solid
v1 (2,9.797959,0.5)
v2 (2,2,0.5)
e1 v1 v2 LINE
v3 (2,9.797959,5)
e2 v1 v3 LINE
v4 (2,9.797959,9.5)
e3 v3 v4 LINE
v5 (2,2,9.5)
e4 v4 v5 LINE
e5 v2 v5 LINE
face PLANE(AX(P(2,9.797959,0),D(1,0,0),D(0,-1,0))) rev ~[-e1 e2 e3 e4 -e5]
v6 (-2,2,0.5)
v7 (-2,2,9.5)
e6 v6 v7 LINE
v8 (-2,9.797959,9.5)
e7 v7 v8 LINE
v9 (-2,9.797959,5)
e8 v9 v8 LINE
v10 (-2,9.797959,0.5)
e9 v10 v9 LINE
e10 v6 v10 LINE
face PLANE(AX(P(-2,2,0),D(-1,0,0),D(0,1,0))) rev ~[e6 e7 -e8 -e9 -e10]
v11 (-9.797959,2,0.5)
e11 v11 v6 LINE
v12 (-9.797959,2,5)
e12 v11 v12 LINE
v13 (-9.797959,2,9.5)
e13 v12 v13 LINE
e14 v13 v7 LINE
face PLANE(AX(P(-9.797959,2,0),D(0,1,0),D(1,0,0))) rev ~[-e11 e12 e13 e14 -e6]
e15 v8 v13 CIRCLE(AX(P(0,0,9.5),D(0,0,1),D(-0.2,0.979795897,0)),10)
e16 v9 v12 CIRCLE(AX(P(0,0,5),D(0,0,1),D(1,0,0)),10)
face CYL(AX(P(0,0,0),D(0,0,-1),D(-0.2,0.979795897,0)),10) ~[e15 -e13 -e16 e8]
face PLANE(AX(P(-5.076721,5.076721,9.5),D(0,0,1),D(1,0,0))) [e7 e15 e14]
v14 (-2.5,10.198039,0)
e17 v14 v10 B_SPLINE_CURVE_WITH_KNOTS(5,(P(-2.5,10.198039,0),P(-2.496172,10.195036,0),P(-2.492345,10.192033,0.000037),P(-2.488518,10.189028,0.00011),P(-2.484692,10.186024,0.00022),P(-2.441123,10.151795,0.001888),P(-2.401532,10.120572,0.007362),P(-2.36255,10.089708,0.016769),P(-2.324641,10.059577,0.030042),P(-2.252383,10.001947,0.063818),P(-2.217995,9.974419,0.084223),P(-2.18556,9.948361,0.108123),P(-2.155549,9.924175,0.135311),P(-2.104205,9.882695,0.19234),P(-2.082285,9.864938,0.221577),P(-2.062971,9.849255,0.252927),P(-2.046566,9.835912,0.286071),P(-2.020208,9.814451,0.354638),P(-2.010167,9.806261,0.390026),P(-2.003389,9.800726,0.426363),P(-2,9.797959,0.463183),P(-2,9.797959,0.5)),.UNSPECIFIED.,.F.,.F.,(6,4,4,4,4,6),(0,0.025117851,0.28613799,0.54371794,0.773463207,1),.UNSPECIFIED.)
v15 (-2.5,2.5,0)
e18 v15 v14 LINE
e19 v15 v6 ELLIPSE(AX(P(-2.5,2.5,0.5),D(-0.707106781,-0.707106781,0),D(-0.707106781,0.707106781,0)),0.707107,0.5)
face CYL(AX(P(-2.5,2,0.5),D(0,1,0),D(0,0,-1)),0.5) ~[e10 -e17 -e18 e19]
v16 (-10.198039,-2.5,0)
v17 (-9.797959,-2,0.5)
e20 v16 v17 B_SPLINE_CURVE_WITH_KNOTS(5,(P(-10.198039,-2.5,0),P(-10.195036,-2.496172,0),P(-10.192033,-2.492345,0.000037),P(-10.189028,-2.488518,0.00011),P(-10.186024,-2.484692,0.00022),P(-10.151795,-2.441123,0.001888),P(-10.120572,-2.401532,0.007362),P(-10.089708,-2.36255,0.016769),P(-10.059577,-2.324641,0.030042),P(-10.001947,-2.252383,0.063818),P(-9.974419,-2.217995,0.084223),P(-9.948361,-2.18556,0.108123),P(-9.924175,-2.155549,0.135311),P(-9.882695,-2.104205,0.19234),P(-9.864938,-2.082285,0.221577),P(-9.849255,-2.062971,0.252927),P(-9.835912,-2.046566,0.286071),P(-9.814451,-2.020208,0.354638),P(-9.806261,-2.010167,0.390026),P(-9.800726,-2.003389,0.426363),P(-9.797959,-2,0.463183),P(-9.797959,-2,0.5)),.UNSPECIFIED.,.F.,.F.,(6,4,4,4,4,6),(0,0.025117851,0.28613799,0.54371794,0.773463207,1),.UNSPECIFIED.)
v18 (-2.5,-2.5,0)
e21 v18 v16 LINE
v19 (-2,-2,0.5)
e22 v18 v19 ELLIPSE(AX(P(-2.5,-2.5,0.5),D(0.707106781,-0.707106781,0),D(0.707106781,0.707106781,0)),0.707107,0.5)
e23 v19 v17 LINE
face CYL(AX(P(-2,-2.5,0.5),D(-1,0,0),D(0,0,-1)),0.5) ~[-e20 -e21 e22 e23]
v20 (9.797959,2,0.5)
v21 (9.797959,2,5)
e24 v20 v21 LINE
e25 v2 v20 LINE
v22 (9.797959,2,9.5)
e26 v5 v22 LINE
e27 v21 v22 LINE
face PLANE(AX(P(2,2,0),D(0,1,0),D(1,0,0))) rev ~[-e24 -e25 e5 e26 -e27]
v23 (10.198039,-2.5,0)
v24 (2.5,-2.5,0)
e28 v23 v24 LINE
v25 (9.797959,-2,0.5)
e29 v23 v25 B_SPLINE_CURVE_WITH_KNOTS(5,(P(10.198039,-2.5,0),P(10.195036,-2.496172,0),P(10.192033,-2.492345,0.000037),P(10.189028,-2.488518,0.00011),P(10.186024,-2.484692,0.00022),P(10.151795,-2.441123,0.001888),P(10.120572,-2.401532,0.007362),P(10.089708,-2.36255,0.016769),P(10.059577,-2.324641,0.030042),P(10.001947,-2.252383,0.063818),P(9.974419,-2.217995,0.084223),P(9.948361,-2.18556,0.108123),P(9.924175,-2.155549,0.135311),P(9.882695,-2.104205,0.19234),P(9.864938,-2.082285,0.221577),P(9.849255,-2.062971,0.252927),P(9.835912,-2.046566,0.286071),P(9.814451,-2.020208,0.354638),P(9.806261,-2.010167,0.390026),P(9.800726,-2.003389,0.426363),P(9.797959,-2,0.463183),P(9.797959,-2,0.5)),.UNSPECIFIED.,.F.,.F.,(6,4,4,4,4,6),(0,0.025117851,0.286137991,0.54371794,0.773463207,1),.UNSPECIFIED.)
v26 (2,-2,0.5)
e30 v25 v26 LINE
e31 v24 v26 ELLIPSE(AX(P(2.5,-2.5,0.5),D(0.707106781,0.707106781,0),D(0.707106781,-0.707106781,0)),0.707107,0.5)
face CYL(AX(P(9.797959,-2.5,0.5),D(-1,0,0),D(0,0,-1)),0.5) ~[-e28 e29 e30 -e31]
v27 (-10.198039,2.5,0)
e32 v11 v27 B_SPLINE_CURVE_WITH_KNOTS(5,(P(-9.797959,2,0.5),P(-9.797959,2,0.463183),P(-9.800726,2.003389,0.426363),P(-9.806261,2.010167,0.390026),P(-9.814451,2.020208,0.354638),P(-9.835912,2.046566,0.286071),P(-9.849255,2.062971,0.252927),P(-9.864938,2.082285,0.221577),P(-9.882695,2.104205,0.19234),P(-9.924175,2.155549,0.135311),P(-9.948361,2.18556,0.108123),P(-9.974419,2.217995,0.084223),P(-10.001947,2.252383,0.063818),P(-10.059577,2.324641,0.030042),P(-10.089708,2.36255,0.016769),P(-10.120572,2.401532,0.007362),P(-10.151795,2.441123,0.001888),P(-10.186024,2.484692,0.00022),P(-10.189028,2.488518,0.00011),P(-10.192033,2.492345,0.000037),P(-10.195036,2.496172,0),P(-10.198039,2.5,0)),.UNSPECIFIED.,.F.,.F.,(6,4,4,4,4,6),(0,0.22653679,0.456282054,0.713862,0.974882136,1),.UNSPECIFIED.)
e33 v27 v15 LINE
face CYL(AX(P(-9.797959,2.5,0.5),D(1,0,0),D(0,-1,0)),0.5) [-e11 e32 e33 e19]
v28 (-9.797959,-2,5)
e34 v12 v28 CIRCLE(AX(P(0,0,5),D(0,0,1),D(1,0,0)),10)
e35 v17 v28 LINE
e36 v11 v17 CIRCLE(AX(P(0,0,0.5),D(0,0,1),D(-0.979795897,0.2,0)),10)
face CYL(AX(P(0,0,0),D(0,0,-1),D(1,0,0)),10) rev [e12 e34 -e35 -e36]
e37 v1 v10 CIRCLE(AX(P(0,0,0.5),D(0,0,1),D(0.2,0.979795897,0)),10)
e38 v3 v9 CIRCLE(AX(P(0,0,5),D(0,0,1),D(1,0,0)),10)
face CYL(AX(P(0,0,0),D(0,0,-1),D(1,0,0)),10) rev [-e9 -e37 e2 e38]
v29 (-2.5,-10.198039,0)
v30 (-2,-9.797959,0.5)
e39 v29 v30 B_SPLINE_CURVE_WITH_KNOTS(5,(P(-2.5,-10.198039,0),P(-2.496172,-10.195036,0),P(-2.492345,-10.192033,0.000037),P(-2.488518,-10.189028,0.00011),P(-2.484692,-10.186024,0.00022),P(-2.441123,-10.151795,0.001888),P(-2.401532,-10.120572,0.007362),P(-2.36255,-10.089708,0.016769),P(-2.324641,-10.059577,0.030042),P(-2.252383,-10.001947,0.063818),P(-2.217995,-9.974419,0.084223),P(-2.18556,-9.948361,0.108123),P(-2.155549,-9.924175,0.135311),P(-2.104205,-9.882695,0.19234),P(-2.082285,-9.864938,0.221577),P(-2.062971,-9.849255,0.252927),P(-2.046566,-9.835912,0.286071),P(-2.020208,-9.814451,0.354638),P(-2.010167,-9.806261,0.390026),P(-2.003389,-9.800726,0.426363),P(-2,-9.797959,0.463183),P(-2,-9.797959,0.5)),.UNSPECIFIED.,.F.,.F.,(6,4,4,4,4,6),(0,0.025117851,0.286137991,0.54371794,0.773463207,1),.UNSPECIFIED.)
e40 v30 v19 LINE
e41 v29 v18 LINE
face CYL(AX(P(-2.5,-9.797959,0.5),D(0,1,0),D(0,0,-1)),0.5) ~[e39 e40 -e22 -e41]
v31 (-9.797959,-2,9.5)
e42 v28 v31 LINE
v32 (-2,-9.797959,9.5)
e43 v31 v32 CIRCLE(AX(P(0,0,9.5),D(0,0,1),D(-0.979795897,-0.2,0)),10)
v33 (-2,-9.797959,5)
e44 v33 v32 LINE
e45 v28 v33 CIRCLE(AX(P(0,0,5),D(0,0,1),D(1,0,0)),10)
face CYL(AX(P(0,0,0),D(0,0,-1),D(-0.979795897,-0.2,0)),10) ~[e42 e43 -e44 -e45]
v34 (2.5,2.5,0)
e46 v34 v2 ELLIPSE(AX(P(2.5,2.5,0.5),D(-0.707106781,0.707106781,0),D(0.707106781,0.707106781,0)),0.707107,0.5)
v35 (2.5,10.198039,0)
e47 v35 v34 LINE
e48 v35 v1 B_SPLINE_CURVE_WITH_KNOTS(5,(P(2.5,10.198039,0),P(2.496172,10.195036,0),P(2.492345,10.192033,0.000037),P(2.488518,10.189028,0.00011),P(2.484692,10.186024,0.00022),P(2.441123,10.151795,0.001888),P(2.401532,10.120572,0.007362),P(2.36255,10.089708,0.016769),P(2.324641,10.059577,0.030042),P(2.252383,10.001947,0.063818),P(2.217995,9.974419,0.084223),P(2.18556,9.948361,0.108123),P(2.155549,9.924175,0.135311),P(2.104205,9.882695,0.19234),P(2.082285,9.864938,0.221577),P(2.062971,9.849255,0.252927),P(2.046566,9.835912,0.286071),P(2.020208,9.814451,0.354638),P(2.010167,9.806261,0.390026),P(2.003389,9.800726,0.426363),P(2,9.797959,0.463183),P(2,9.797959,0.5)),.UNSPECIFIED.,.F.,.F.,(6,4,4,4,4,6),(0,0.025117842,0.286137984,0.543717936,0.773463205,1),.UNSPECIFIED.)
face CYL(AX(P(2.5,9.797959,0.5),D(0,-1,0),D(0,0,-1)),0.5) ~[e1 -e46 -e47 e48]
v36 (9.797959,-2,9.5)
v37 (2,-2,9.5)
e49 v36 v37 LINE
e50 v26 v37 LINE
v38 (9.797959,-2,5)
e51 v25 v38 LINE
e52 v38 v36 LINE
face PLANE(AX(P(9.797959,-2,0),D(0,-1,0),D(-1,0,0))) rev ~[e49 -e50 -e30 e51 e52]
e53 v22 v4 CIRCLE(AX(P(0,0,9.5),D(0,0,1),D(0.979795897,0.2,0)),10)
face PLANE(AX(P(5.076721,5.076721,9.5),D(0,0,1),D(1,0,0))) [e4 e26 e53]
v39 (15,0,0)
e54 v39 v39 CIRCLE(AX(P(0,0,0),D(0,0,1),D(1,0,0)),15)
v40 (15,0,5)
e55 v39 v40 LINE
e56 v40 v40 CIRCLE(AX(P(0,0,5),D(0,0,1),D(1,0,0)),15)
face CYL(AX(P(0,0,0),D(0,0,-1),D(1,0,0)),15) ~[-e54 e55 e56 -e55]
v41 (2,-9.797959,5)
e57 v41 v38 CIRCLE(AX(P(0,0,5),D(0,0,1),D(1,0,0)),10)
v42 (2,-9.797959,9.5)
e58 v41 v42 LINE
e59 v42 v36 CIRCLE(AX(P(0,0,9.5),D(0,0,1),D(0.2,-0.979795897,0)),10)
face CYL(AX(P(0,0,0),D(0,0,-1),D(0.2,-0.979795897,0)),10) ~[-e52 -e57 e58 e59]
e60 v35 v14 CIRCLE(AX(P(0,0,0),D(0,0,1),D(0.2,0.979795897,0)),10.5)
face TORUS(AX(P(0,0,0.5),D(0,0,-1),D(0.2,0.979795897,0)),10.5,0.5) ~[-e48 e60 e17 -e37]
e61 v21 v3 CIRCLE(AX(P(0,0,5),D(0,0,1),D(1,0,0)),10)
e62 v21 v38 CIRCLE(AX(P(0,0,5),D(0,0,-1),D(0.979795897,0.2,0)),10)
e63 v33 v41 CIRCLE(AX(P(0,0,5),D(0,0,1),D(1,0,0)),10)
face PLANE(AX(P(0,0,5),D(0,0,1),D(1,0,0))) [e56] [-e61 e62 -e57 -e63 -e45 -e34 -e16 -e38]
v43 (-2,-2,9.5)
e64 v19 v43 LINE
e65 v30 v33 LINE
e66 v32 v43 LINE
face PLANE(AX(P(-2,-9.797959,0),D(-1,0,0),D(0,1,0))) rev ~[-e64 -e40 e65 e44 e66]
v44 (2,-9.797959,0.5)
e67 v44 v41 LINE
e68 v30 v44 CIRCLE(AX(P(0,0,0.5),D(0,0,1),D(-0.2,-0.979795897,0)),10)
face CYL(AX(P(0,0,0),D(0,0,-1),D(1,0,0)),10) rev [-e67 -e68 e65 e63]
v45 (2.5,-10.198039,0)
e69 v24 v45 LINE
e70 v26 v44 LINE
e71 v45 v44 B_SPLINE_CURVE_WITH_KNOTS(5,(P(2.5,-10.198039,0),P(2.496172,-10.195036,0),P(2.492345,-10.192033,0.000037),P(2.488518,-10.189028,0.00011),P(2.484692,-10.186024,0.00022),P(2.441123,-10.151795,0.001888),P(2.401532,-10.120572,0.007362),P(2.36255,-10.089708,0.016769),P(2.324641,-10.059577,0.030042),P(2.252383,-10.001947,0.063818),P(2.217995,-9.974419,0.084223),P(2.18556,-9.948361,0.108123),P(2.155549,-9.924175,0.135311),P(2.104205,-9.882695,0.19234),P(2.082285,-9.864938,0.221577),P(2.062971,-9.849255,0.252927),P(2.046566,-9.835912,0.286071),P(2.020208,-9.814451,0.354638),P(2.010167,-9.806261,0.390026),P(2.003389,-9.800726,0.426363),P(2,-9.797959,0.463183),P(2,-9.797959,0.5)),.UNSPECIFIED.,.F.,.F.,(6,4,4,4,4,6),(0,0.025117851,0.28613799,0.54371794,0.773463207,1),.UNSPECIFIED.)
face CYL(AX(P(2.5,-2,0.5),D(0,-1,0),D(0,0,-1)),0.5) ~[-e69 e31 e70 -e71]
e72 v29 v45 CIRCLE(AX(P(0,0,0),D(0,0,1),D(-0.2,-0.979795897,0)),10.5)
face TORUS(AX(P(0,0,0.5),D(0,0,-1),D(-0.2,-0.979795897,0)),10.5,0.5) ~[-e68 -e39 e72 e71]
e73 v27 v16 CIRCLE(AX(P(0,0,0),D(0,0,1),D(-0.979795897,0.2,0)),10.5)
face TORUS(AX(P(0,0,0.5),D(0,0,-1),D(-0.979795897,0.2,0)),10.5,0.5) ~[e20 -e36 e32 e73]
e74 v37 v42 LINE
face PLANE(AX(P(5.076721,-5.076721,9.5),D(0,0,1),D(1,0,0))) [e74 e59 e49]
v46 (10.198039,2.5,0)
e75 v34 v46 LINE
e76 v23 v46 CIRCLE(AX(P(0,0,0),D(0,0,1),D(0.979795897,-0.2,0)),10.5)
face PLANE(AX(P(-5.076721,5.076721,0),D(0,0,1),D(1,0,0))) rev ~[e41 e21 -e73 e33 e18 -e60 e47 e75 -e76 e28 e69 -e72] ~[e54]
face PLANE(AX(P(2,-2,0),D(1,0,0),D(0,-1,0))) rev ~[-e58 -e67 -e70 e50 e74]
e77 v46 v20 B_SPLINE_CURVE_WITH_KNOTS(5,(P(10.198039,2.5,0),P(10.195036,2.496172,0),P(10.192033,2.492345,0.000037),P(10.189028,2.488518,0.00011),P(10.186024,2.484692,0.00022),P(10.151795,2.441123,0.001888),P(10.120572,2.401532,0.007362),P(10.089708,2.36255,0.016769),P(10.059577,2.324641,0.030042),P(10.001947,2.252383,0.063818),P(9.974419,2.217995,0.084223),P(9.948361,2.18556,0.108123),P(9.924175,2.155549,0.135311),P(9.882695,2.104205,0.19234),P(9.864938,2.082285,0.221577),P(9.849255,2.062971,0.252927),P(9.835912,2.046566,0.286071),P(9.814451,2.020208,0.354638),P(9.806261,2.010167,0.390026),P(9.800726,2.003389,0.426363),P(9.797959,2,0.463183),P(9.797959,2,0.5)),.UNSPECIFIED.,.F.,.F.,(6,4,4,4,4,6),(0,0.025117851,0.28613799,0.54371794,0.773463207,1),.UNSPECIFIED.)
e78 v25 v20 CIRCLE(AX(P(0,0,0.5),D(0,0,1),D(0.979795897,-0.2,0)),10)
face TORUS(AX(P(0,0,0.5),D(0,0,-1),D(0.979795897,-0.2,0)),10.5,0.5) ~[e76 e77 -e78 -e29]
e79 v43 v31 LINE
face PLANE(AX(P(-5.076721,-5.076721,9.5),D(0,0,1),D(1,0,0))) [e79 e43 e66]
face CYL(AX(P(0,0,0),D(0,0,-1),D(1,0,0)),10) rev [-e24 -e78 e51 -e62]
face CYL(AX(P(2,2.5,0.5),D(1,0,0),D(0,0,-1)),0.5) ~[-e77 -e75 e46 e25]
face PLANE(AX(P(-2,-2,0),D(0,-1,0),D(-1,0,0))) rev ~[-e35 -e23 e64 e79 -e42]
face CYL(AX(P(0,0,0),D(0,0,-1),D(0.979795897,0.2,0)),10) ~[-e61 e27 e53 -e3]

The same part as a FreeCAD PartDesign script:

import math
import FreeCAD as App
import Part
import Sketcher

V = App.Vector


def edges_at(feature, points):
    """Names of the edges that pass closest to the given points."""
    edges = feature.Shape.Edges
    near = lambda p: min(range(len(edges)), key=lambda i: edges[i].distToShape(Part.Vertex(*p))[0])
    return sorted({f"Edge{near(p) + 1}" for p in points})

doc = App.newDocument("Part")
body = doc.addObject("PartDesign::Body", "Body")

sketch1 = body.newObject("Sketcher::SketchObject", "Sketch")
sketch1.AttachmentSupport = (doc.getObject("XY_Plane"), [""])
sketch1.MapMode = "FlatFace"
sketch1.addGeometry(Part.Circle(V(0, 0, 0), V(0, 0, 1), 15), False)
sketch1.addGeometry(Part.Circle(V(0, 0, 0), V(0, 0, 1), 10), False)
sketch1.addConstraint(Sketcher.Constraint("Coincident", 0, 3, -1, 1))
sketch1.addConstraint(Sketcher.Constraint("Coincident", 1, 3, -1, 1))
sketch1.addConstraint(Sketcher.Constraint("Diameter", 0, 30.0))
sketch1.addConstraint(Sketcher.Constraint("Diameter", 1, 20.0))
pad1 = body.newObject("PartDesign::Pad", "Pad")
pad1.Profile = sketch1
pad1.Length = 5

sketch2 = body.newObject("Sketcher::SketchObject", "Sketch001")
sketch2.AttachmentSupport = (doc.getObject("XY_Plane"), [""])
sketch2.MapMode = "FlatFace"
sketch2.addGeometry(Part.LineSegment(V(-10, 2, 0), V(-2, 2, 0)), False)
sketch2.addGeometry(Part.LineSegment(V(-2, 2, 0), V(-2, 10, 0)), False)
sketch2.addGeometry(Part.ArcOfCircle(Part.Circle(V(0, 0, 0), V(0, 0, 1), 10), math.radians(102), math.radians(168)), False)
sketch2.addGeometry(Part.LineSegment(V(2, 10, 0), V(2, 2, 0)), False)
sketch2.addGeometry(Part.LineSegment(V(2, 2, 0), V(10, 2, 0)), False)
sketch2.addGeometry(Part.ArcOfCircle(Part.Circle(V(0, 0, 0), V(0, 0, 1), 10), math.radians(12), math.radians(78)), False)
sketch2.addGeometry(Part.LineSegment(V(2, -2, 0), V(2, -10, 0)), False)
sketch2.addGeometry(Part.ArcOfCircle(Part.Circle(V(0, 0, 0), V(0, 0, 1), 10), math.radians(-78), math.radians(-12)), False)
sketch2.addGeometry(Part.LineSegment(V(10, -2, 0), V(2, -2, 0)), False)
sketch2.addGeometry(Part.ArcOfCircle(Part.Circle(V(0, 0, 0), V(0, 0, 1), 10), math.radians(-168), math.radians(-102)), False)
sketch2.addGeometry(Part.LineSegment(V(-2, -10, 0), V(-2, -2, 0)), False)
sketch2.addGeometry(Part.LineSegment(V(-2, -2, 0), V(-10, -2, 0)), False)
sketch2.addConstraint(Sketcher.Constraint("Coincident", 0, 2, 1, 1))
sketch2.addConstraint(Sketcher.Constraint("Coincident", 1, 2, 2, 1))
sketch2.addConstraint(Sketcher.Constraint("Coincident", 2, 2, 0, 1))
sketch2.addConstraint(Sketcher.Constraint("Coincident", 3, 2, 4, 1))
sketch2.addConstraint(Sketcher.Constraint("Coincident", 4, 2, 5, 1))
sketch2.addConstraint(Sketcher.Constraint("Coincident", 5, 2, 3, 1))
sketch2.addConstraint(Sketcher.Constraint("Coincident", 6, 2, 7, 1))
sketch2.addConstraint(Sketcher.Constraint("Coincident", 7, 2, 8, 1))
sketch2.addConstraint(Sketcher.Constraint("Coincident", 8, 2, 6, 1))
sketch2.addConstraint(Sketcher.Constraint("Coincident", 9, 2, 10, 1))
sketch2.addConstraint(Sketcher.Constraint("Coincident", 10, 2, 11, 1))
sketch2.addConstraint(Sketcher.Constraint("Coincident", 11, 2, 9, 1))
sketch2.addConstraint(Sketcher.Constraint("Horizontal", 0))
sketch2.addConstraint(Sketcher.Constraint("Vertical", 1))
sketch2.addConstraint(Sketcher.Constraint("Vertical", 3))
sketch2.addConstraint(Sketcher.Constraint("Horizontal", 4))
sketch2.addConstraint(Sketcher.Constraint("Vertical", 6))
sketch2.addConstraint(Sketcher.Constraint("Horizontal", 8))
sketch2.addConstraint(Sketcher.Constraint("Vertical", 10))
sketch2.addConstraint(Sketcher.Constraint("Horizontal", 11))
sketch2.addConstraint(Sketcher.Constraint("Coincident", 2, 3, -1, 1))
sketch2.addConstraint(Sketcher.Constraint("Coincident", 5, 3, -1, 1))
sketch2.addConstraint(Sketcher.Constraint("Coincident", 7, 3, -1, 1))
sketch2.addConstraint(Sketcher.Constraint("Coincident", 9, 3, -1, 1))
sketch2.addConstraint(Sketcher.Constraint("Equal", 2, 5))
sketch2.addConstraint(Sketcher.Constraint("Equal", 5, 7))
sketch2.addConstraint(Sketcher.Constraint("Equal", 7, 9))
sketch2.addConstraint(Sketcher.Constraint("Symmetric", 0, 2, 8, 2, -1, 1))
sketch2.addConstraint(Sketcher.Constraint("Symmetric", 3, 2, 10, 2, -1, 1))
sketch2.addConstraint(Sketcher.Constraint("Symmetric", 0, 2, 3, 2, -2))
sketch2.addConstraint(Sketcher.Constraint("Equal", 11, 1))
sketch2.addConstraint(Sketcher.Constraint("Radius", 2, 10.0))
sketch2.addConstraint(Sketcher.Constraint("DistanceX", 0, 2, -1, 1, 2.0))
pad2 = body.newObject("PartDesign::Pad", "Pad001")
pad2.Profile = sketch2
pad2.Length = 9.5
doc.recompute()

fillet = body.newObject("PartDesign::Fillet", "Fillet")
fillet.Base = (pad2, edges_at(pad2, [
    (-2, 5.899, 0),
    (-5.899, 2, 0),
    (0, 10, 0),
    (5.899, 2, 0),
    (2, 5.899, 0),
    (10, 0, 0),
    (2, -5.899, 0),
    (5.899, -2, 0),
    (0, -10, 0),
    (-2, -5.899, 0),
    (-5.899, -2, 0),
    (-10, 0, 0),
]))
fillet.Radius = 0.5

doc.recompute()
